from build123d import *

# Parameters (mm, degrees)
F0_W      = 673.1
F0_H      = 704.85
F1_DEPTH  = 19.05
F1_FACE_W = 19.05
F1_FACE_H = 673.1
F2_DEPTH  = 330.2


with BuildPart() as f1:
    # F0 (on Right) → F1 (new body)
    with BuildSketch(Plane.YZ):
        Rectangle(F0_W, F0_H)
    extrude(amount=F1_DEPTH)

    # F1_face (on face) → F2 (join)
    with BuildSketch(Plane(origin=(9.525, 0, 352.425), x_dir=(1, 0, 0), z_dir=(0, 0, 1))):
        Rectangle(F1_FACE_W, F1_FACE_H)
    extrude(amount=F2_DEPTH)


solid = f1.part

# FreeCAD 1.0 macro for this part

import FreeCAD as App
import Part
import Sketcher
from FreeCAD import Vector
Q = App.Units.Quantity


def add_polygon(sketch, points):
    """Adds a closed chain of lines whose ends are joined by coincident constraints."""
    first, n = sketch.GeometryCount, len(points)
    for a, b in zip(points, points[1:] + points[:1]):
        sketch.addGeometry(Part.LineSegment(App.Vector(*a, 0), App.Vector(*b, 0)), False)
    for i in range(n):
        sketch.addConstraint(Sketcher.Constraint("Coincident", first + i, 2, first + (i + 1) % n, 1))

doc = App.newDocument("Part")
body = doc.addObject("PartDesign::Body", "Body")

sketch1 = body.newObject("Sketcher::SketchObject", "Sketch")
sketch1.AttachmentSupport = (doc.getObject("YZ_Plane"), [""])
sketch1.MapMode = "FlatFace"
add_polygon(sketch1, [(-337, 352), (-337, -352), (337, -352), (337, 352)])
sketch1.addConstraint([
    Sketcher.Constraint("Vertical", 0),
    Sketcher.Constraint("Horizontal", 1),
    Sketcher.Constraint("Vertical", 2),
    Sketcher.Constraint("Horizontal", 3),
    Sketcher.Constraint("Symmetric", 0, 2, 2, 2, -1, 1),
    Sketcher.Constraint("DistanceX", 1, 1, 1, 2, Q("26.5 in")),
    Sketcher.Constraint("DistanceY", 0, 2, 0, 1, Q("27.75 in")),
])
pad1 = body.newObject("PartDesign::Pad", "Pad")
pad1.Profile = sketch1
pad1.Length = Q("0.75 in")

sketch2 = body.newObject("Sketcher::SketchObject", "Sketch001")
sketch2.AttachmentSupport = (doc.getObject("XY_Plane"), [""])
sketch2.MapMode = "FlatFace"
sketch2.AttachmentOffset = App.Placement(Vector(0, 0, 13.875 * 25.4), App.Rotation())
add_polygon(sketch2, [(0, 337), (0, -337), (19, -337), (19, 337)])
sketch2.addConstraint([
    Sketcher.Constraint("Vertical", 0),
    Sketcher.Constraint("Horizontal", 1),
    Sketcher.Constraint("Vertical", 2),
    Sketcher.Constraint("Horizontal", 3),
    Sketcher.Constraint("Symmetric", 0, 2, 3, 2, -1, 1),
    Sketcher.Constraint("DistanceY", 0, 2, 0, 1, Q("26.5 in")),
    Sketcher.Constraint("DistanceX", 1, 1, 1, 2, Q("0.75 in")),
])
pad2 = body.newObject("PartDesign::Pad", "Pad001")
pad2.Profile = sketch2
pad2.Length = Q("13 in")

doc.recompute()
